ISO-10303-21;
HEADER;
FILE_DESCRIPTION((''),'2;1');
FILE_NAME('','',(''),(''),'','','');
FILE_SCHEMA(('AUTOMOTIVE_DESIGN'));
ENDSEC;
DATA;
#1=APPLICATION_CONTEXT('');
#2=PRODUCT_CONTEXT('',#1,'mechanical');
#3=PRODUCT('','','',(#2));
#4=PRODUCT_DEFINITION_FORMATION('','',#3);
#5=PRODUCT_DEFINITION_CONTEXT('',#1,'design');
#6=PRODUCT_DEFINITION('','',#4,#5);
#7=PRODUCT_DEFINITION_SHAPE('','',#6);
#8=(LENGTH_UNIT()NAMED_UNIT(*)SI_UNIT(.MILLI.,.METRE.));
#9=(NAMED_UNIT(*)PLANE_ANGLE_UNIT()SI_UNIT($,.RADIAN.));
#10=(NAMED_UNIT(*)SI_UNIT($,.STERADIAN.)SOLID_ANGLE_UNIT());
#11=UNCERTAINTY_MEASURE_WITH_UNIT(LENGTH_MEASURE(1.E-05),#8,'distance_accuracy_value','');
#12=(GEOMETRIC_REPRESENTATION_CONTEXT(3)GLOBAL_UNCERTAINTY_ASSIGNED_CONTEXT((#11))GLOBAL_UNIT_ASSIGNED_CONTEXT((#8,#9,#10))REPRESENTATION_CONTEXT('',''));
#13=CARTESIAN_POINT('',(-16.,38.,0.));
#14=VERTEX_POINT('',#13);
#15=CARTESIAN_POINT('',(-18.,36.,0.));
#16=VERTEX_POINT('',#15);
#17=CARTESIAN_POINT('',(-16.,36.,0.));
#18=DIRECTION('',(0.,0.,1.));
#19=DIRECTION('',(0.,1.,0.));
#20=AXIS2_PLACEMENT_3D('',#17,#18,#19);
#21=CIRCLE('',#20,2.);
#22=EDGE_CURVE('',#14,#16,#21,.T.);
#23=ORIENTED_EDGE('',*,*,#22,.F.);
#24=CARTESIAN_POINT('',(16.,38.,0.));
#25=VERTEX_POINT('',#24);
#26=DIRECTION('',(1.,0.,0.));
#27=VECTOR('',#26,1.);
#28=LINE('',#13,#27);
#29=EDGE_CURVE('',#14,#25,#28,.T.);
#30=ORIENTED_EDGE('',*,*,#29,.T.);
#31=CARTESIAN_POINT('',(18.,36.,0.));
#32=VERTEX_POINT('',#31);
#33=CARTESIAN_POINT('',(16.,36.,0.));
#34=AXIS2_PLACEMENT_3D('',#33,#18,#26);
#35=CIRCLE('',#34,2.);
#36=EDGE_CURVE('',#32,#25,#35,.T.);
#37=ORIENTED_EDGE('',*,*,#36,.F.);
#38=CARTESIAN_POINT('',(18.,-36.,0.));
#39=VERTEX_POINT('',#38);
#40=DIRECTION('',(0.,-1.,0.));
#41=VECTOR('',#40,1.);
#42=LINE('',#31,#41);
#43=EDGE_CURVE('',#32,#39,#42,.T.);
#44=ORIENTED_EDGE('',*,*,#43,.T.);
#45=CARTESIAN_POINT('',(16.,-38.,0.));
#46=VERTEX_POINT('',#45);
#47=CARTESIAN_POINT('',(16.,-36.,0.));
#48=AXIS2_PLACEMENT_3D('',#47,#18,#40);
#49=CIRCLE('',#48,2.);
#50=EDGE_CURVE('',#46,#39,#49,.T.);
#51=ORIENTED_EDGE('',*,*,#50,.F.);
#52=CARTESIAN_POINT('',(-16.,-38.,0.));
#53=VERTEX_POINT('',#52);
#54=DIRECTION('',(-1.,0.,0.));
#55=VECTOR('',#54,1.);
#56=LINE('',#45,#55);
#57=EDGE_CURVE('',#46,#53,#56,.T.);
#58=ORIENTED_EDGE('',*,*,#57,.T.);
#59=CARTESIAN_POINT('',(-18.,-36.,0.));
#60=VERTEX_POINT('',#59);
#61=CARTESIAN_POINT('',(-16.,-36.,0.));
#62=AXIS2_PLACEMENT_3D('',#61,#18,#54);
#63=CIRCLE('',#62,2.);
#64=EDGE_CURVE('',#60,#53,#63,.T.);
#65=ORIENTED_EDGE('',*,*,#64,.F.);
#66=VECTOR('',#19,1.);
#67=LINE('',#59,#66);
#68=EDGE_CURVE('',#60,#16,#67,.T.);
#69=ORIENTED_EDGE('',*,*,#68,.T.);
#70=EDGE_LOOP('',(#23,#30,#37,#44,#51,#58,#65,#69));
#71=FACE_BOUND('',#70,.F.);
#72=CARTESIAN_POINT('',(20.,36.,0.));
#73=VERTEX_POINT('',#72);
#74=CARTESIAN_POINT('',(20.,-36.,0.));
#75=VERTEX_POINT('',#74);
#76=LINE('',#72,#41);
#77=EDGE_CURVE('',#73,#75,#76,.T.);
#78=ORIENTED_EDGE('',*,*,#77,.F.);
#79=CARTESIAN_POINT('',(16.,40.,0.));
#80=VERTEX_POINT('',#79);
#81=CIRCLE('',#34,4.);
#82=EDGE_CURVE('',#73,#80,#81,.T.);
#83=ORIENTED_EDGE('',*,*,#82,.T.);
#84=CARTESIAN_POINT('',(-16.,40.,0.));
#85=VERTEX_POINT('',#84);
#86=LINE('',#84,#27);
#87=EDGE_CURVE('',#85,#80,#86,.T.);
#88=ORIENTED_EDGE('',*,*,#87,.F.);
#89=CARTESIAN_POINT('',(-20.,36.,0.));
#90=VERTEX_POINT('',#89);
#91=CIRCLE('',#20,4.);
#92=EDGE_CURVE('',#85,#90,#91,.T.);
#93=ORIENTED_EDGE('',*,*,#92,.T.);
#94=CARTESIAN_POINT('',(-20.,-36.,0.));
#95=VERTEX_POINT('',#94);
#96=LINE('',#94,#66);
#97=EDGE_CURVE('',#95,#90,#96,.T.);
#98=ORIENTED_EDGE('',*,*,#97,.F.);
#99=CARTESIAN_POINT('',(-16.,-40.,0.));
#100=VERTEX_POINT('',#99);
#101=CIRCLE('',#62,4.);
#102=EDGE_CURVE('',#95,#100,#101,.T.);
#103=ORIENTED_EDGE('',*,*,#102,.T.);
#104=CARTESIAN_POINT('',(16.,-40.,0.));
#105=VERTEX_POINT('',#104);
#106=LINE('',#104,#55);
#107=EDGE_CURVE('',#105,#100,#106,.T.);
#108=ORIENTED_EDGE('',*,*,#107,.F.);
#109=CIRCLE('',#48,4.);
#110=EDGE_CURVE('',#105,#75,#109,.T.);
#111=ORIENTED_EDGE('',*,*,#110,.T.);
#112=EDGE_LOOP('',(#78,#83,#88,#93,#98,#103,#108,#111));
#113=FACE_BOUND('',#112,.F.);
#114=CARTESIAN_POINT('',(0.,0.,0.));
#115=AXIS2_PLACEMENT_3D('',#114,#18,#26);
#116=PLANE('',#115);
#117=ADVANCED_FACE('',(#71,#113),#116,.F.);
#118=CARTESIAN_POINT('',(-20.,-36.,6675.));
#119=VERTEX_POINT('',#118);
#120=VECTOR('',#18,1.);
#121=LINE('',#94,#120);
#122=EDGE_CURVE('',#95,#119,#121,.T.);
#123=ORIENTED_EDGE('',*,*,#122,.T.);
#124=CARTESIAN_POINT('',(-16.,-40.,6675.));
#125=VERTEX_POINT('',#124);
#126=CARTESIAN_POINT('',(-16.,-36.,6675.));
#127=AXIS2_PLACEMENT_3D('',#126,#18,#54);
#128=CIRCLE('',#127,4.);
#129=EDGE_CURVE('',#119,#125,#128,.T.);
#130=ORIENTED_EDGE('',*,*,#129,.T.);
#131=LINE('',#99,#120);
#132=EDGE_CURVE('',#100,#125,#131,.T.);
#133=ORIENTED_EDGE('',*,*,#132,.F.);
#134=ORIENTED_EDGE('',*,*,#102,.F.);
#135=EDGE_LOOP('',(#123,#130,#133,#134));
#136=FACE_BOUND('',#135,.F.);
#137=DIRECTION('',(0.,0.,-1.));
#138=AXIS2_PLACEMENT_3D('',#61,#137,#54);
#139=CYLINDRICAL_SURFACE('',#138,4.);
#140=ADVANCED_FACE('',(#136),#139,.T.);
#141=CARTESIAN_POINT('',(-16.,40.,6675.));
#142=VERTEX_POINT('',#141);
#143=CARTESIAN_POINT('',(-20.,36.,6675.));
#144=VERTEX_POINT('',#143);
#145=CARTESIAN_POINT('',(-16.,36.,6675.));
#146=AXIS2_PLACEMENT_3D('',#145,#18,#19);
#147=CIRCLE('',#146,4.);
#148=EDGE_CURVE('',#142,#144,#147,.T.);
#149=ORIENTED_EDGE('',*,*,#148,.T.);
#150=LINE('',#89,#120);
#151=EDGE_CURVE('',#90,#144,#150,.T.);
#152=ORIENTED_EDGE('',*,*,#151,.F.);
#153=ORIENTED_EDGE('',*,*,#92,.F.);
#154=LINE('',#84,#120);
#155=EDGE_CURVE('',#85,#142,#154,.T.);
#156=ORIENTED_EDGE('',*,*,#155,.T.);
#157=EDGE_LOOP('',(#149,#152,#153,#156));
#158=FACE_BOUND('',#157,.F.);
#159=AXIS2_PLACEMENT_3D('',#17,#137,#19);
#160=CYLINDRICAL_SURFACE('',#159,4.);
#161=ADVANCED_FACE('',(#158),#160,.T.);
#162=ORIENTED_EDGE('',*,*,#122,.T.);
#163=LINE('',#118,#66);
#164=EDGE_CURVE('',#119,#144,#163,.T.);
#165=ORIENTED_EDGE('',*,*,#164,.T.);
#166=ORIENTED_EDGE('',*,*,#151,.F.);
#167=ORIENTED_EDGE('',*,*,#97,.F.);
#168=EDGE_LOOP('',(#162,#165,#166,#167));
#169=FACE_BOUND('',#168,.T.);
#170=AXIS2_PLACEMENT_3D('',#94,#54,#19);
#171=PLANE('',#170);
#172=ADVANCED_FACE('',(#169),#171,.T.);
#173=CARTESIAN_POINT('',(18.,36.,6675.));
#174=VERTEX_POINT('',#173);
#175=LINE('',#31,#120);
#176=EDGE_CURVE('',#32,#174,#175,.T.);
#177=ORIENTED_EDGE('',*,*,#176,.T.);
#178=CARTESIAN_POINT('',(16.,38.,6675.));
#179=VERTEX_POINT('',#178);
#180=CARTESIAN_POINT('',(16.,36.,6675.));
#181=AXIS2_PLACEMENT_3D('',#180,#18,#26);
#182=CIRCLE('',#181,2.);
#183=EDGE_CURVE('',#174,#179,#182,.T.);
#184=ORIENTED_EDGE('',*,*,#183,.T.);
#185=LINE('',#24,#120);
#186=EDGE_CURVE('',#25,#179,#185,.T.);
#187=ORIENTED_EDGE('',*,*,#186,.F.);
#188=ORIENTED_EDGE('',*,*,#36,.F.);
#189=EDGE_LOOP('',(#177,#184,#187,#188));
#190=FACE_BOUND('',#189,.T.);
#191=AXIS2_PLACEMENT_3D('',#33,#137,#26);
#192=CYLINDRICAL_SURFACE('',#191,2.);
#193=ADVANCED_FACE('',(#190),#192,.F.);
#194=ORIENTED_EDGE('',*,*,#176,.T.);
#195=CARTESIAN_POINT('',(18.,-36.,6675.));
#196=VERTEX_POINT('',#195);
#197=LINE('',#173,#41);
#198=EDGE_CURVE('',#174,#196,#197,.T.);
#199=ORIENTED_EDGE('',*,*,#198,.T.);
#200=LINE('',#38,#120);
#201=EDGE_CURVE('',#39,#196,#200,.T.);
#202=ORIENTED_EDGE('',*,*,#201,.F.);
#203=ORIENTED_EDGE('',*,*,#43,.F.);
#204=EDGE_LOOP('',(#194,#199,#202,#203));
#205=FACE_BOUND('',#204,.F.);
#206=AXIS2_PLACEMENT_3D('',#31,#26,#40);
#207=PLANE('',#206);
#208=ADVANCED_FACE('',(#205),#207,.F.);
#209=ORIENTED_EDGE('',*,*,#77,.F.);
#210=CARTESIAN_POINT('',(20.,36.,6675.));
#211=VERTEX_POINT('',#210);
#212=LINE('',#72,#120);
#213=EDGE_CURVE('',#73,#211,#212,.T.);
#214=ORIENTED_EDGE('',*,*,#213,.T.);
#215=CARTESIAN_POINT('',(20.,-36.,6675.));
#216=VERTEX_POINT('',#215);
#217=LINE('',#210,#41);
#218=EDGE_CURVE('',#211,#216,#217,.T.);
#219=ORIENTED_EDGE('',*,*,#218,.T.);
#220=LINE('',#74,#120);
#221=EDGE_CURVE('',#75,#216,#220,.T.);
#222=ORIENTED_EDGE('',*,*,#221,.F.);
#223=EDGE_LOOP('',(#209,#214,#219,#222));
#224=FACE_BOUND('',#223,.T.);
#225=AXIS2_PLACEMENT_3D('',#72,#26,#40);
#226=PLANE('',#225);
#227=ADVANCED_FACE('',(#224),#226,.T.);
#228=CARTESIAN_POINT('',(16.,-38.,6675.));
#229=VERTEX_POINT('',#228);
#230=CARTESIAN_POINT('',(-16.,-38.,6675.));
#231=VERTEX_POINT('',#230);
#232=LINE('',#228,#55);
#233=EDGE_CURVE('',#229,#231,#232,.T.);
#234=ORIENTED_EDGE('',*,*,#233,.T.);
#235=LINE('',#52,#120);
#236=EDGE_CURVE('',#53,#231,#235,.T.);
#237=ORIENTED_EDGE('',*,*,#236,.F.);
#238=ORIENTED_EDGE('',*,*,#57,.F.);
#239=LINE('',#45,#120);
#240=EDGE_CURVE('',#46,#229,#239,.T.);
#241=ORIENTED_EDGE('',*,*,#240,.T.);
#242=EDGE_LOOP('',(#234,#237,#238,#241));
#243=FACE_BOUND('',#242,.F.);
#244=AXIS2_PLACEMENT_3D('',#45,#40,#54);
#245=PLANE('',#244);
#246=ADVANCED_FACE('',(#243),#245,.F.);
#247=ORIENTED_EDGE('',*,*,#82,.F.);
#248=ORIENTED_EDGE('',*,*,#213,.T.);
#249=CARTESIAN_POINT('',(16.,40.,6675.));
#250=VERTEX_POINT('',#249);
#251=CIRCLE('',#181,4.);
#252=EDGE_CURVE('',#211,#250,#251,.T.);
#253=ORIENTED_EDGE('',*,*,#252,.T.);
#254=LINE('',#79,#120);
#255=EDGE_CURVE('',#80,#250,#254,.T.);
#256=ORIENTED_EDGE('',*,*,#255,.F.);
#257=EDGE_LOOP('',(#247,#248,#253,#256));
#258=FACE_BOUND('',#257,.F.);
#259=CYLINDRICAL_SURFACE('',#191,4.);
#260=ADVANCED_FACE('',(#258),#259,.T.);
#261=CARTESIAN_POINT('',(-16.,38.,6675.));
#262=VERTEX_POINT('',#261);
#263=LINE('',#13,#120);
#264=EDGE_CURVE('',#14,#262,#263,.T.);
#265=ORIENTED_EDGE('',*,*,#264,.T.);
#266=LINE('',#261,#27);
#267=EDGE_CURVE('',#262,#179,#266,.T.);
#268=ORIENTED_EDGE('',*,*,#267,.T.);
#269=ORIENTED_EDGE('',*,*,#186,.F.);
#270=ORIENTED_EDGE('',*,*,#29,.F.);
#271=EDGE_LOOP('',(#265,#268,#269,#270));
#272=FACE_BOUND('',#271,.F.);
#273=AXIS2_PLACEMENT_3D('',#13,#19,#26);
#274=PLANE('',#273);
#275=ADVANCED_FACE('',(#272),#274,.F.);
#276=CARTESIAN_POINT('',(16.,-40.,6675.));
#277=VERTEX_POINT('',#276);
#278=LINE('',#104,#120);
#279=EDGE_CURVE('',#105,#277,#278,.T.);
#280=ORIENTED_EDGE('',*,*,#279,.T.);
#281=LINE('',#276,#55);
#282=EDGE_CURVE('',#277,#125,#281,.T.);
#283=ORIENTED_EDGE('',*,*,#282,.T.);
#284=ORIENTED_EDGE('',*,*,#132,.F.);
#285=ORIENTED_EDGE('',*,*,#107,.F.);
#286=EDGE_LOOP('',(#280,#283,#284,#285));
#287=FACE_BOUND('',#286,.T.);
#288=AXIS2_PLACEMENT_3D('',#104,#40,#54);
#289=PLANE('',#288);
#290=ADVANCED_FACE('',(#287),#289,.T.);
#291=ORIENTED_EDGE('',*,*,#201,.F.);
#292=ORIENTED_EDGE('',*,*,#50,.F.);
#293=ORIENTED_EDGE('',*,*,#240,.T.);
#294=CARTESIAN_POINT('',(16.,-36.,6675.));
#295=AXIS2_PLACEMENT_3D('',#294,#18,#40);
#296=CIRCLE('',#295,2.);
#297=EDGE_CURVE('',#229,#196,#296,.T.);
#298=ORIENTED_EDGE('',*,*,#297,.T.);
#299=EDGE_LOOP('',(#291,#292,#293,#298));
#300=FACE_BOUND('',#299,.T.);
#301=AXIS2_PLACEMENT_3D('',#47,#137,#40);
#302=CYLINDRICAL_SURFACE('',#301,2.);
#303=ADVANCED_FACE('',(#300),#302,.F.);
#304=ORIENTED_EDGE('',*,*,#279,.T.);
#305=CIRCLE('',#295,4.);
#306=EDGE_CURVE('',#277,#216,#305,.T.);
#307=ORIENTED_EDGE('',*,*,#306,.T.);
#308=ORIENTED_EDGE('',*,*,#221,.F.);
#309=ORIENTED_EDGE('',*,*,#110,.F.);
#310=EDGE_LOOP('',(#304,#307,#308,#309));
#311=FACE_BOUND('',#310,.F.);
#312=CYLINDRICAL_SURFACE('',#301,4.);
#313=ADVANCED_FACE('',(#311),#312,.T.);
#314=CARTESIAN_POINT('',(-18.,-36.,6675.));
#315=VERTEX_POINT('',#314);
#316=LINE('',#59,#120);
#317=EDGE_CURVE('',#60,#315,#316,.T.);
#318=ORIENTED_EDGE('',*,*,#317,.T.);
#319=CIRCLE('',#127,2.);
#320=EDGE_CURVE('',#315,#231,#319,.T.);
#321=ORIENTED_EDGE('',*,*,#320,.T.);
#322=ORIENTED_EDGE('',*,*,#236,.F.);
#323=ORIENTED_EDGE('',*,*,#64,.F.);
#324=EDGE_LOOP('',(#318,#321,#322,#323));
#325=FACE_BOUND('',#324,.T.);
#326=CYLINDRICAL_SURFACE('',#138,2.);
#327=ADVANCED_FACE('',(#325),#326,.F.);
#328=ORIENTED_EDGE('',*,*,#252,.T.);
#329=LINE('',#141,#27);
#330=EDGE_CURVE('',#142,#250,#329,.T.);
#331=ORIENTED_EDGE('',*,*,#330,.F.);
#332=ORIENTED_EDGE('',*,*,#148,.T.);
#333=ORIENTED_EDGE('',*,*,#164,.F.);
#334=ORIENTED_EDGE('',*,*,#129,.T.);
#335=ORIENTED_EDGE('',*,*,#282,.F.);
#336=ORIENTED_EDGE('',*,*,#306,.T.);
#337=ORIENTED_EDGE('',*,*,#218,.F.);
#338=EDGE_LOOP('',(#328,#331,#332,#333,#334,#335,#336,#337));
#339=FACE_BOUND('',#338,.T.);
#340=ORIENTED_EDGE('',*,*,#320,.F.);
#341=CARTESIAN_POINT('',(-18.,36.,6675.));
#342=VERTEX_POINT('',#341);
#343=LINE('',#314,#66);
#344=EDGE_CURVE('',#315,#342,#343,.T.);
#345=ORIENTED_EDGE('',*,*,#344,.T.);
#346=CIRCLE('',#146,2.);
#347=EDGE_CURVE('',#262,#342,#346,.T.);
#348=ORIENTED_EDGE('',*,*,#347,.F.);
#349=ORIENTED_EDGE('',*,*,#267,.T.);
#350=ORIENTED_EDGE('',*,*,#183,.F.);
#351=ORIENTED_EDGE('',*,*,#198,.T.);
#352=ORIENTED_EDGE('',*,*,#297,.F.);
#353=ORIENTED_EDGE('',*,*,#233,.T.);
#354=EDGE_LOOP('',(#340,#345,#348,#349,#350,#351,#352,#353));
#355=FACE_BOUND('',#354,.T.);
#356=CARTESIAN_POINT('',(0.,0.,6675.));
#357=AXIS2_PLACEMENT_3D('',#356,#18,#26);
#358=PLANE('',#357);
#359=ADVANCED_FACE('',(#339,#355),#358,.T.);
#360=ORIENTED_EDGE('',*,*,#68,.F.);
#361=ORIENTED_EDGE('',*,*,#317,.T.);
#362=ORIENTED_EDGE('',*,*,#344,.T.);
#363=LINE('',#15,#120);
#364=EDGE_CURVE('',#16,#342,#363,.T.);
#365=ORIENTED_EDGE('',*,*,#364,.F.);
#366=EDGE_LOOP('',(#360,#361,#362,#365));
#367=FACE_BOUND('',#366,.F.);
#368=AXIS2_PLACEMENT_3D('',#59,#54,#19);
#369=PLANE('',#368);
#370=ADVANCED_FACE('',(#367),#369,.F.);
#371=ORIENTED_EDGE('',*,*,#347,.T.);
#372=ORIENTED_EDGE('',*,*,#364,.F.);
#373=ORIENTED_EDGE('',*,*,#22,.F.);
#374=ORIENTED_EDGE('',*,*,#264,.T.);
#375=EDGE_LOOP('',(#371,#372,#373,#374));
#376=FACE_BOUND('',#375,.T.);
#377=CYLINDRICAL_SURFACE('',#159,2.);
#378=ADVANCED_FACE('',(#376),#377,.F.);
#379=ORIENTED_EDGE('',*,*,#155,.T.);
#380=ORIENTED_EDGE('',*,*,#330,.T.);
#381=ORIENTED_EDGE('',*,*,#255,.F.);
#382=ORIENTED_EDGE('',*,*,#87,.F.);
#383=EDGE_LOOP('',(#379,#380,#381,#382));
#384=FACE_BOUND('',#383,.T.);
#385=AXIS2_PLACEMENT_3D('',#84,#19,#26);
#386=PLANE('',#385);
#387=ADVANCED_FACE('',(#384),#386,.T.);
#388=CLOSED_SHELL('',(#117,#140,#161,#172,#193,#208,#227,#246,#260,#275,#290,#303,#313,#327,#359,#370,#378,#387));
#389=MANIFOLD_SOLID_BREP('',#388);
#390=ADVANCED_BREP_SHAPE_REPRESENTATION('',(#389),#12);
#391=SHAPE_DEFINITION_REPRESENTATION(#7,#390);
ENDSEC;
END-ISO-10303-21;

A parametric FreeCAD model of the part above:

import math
import FreeCAD as App
import Part
import Sketcher

doc = App.newDocument("Part")
body = doc.addObject("PartDesign::Body", "Body")

# Sketch on XY plane
sketch1 = body.newObject("Sketcher::SketchObject", "Sketch")
sketch1.AttachmentSupport = (doc.getObject("XY_Plane"), [""])
sketch1.MapMode = "FlatFace"
sketch1.addGeometry(Part.LineSegment(App.Vector(-20, 36, 0), App.Vector(-20, -36, 0)), False)
sketch1.addGeometry(Part.ArcOfCircle(Part.Circle(App.Vector(-16, -36, 0), App.Vector(0, 0, 1), 4), math.radians(180), math.radians(270)), False)
sketch1.addGeometry(Part.LineSegment(App.Vector(-16, -40, 0), App.Vector(16, -40, 0)), False)
sketch1.addGeometry(Part.ArcOfCircle(Part.Circle(App.Vector(16, -36, 0), App.Vector(0, 0, 1), 4), math.radians(-90), math.radians(0)), False)
sketch1.addGeometry(Part.LineSegment(App.Vector(20, -36, 0), App.Vector(20, 36, 0)), False)
sketch1.addGeometry(Part.ArcOfCircle(Part.Circle(App.Vector(16, 36, 0), App.Vector(0, 0, 1), 4), math.radians(0), math.radians(90)), False)
sketch1.addGeometry(Part.LineSegment(App.Vector(16, 40, 0), App.Vector(-16, 40, 0)), False)
sketch1.addGeometry(Part.ArcOfCircle(Part.Circle(App.Vector(-16, 36, 0), App.Vector(0, 0, 1), 4), math.radians(90), math.radians(180)), False)
sketch1.addGeometry(Part.ArcOfCircle(Part.Circle(App.Vector(-16, 36, 0), App.Vector(0, 0, 1), 2), math.radians(90), math.radians(180)), False)
sketch1.addGeometry(Part.LineSegment(App.Vector(-16, 38, 0), App.Vector(16, 38, 0)), False)
sketch1.addGeometry(Part.ArcOfCircle(Part.Circle(App.Vector(16, 36, 0), App.Vector(0, 0, 1), 2), math.radians(0), math.radians(90)), False)
sketch1.addGeometry(Part.LineSegment(App.Vector(18, 36, 0), App.Vector(18, -36, 0)), False)
sketch1.addGeometry(Part.ArcOfCircle(Part.Circle(App.Vector(16, -36, 0), App.Vector(0, 0, 1), 2), math.radians(-90), math.radians(0)), False)
sketch1.addGeometry(Part.LineSegment(App.Vector(16, -38, 0), App.Vector(-16, -38, 0)), False)
sketch1.addGeometry(Part.ArcOfCircle(Part.Circle(App.Vector(-16, -36, 0), App.Vector(0, 0, 1), 2), math.radians(180), math.radians(270)), False)
sketch1.addGeometry(Part.LineSegment(App.Vector(-18, -36, 0), App.Vector(-18, 36, 0)), False)
sketch1.addConstraint(Sketcher.Constraint("Tangent", 0, 2, 1, 1))
sketch1.addConstraint(Sketcher.Constraint("Tangent", 1, 2, 2, 1))
sketch1.addConstraint(Sketcher.Constraint("Tangent", 2, 2, 3, 1))
sketch1.addConstraint(Sketcher.Constraint("Tangent", 3, 2, 4, 1))
sketch1.addConstraint(Sketcher.Constraint("Tangent", 4, 2, 5, 1))
sketch1.addConstraint(Sketcher.Constraint("Tangent", 5, 2, 6, 1))
sketch1.addConstraint(Sketcher.Constraint("Tangent", 6, 2, 7, 1))
sketch1.addConstraint(Sketcher.Constraint("Tangent", 7, 2, 0, 1))
sketch1.addConstraint(Sketcher.Constraint("Tangent", 8, 1, 9, 1))
sketch1.addConstraint(Sketcher.Constraint("Tangent", 9, 2, 10, 2))
sketch1.addConstraint(Sketcher.Constraint("Tangent", 10, 1, 11, 1))
sketch1.addConstraint(Sketcher.Constraint("Tangent", 11, 2, 12, 2))
sketch1.addConstraint(Sketcher.Constraint("Tangent", 12, 1, 13, 1))
sketch1.addConstraint(Sketcher.Constraint("Tangent", 13, 2, 14, 2))
sketch1.addConstraint(Sketcher.Constraint("Tangent", 14, 1, 15, 1))
sketch1.addConstraint(Sketcher.Constraint("Tangent", 15, 2, 8, 2))
sketch1.addConstraint(Sketcher.Constraint("Vertical", 0))
sketch1.addConstraint(Sketcher.Constraint("Horizontal", 2))
sketch1.addConstraint(Sketcher.Constraint("Vertical", 4))
sketch1.addConstraint(Sketcher.Constraint("Horizontal", 6))
sketch1.addConstraint(Sketcher.Constraint("Horizontal", 9))
sketch1.addConstraint(Sketcher.Constraint("Vertical", 11))
sketch1.addConstraint(Sketcher.Constraint("Horizontal", 13))
sketch1.addConstraint(Sketcher.Constraint("Vertical", 15))
sketch1.addConstraint(Sketcher.Constraint("Coincident", 8, 3, 7, 3))
sketch1.addConstraint(Sketcher.Constraint("Coincident", 10, 3, 5, 3))
sketch1.addConstraint(Sketcher.Constraint("Coincident", 12, 3, 3, 3))
sketch1.addConstraint(Sketcher.Constraint("Equal", 1, 3))
sketch1.addConstraint(Sketcher.Constraint("Equal", 3, 5))
sketch1.addConstraint(Sketcher.Constraint("Equal", 5, 7))
sketch1.addConstraint(Sketcher.Constraint("Equal", 12, 14))
sketch1.addConstraint(Sketcher.Constraint("Symmetric", 1, 3, 5, 3, -1, 1))
sketch1.addConstraint(Sketcher.Constraint("Radius", 1, 4.0))
sketch1.addConstraint(Sketcher.Constraint("Radius", 8, 2.0))
sketch1.addConstraint(Sketcher.Constraint("DistanceX", 0, 2, -1, 1, 20.0))
sketch1.addConstraint(Sketcher.Constraint("DistanceY", 1, 2, -1, 1, 40.0))
pad1 = body.newObject("PartDesign::Pad", "Pad")
pad1.Profile = sketch1
pad1.Length = 6675

doc.recompute()
